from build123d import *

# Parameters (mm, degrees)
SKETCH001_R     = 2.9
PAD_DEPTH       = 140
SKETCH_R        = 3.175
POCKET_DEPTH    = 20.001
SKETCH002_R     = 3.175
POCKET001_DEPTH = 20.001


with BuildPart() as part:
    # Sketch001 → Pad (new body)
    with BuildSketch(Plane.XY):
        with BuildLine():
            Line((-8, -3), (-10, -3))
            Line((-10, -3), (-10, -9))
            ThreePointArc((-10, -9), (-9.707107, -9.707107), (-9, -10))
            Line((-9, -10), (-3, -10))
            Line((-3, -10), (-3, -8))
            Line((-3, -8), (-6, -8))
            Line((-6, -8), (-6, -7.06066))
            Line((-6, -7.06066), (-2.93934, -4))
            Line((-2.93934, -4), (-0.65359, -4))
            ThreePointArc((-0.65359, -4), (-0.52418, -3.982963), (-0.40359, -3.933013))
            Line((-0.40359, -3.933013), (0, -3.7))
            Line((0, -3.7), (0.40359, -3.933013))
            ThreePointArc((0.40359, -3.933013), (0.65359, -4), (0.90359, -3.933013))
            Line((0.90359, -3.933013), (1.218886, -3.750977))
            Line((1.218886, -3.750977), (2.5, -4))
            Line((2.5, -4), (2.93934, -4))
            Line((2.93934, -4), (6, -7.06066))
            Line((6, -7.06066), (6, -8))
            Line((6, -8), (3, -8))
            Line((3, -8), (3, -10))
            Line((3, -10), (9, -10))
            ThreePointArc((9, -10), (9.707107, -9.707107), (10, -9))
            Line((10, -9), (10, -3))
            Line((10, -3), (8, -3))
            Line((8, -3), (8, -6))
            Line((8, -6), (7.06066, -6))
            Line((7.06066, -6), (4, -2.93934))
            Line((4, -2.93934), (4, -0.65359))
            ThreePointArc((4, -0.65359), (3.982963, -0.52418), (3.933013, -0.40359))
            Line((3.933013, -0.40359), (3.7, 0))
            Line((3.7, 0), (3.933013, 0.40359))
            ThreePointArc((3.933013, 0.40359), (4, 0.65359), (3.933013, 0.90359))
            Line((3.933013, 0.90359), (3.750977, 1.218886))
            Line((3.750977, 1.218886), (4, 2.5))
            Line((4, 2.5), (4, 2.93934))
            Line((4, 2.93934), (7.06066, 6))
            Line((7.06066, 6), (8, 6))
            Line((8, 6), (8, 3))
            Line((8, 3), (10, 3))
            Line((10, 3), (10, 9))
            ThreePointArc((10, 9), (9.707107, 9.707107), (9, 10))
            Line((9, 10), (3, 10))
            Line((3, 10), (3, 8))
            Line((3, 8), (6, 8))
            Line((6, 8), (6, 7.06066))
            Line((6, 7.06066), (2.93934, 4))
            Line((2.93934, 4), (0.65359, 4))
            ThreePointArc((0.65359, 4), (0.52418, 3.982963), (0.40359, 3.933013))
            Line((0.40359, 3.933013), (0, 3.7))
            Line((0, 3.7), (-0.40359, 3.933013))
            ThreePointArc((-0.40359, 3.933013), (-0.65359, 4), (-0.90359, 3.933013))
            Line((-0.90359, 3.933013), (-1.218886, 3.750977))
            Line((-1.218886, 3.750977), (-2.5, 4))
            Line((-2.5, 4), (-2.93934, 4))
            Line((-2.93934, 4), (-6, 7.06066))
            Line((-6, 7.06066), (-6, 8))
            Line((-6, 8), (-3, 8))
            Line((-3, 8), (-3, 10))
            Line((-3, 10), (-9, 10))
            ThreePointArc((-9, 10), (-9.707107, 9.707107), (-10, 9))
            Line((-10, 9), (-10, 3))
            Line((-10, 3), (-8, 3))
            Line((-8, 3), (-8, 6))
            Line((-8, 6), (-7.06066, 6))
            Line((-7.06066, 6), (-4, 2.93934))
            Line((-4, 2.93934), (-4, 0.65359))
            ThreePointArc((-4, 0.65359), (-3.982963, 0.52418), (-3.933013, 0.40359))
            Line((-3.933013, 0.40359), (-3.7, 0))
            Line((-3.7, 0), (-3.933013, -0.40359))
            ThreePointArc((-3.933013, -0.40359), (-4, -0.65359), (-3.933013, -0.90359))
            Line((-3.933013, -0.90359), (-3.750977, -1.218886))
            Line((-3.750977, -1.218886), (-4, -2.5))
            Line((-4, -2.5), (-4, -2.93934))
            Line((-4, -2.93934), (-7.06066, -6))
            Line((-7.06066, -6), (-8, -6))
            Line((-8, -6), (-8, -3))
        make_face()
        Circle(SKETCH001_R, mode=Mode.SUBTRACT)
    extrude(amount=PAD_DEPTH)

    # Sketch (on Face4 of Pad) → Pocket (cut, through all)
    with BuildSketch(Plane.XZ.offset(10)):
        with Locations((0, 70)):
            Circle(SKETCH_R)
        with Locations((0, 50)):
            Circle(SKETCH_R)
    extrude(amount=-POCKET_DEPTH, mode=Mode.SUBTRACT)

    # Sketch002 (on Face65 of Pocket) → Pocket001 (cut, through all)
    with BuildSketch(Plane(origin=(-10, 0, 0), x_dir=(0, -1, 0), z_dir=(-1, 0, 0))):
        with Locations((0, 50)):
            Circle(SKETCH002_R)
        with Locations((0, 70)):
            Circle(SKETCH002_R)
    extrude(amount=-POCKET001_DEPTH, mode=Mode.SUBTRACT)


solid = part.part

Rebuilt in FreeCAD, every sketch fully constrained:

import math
import FreeCAD as App
import Part
import Sketcher
Q = App.Units.Quantity

doc = App.newDocument("Part")
body = doc.addObject("PartDesign::Body", "Body")

sketch1 = doc.addObject("Sketcher::SketchObject", "Sketch")
body.addObject(sketch1)
sketch1.AttachmentSupport = (doc.XY_Plane, [""])
sketch1.MapMode = "FlatFace"
sketch1.addGeometry(Part.LineSegment(App.Vector(-8, -3, 0), App.Vector(-10, -3, 0)), False)
sketch1.addGeometry(Part.LineSegment(App.Vector(-10, -3, 0), App.Vector(-10, -9, 0)), False)
sketch1.addGeometry(Part.ArcOfCircle(Part.Circle(App.Vector(-9, -9, 0), App.Vector(0, 0, 1), 1), math.radians(180), math.radians(270)), False)
sketch1.addGeometry(Part.LineSegment(App.Vector(-9, -10, 0), App.Vector(-3, -10, 0)), False)
sketch1.addGeometry(Part.LineSegment(App.Vector(-3, -10, 0), App.Vector(-3, -8, 0)), False)
sketch1.addGeometry(Part.LineSegment(App.Vector(-3, -8, 0), App.Vector(-6, -8, 0)), False)
sketch1.addGeometry(Part.LineSegment(App.Vector(-6, -8, 0), App.Vector(-6, -7.06, 0)), False)
sketch1.addGeometry(Part.LineSegment(App.Vector(-6, -7.06, 0), App.Vector(-2.94, -4, 0)), False)
sketch1.addGeometry(Part.LineSegment(App.Vector(-2.94, -4, 0), App.Vector(-0.65, -4, 0)), False)
sketch1.addGeometry(Part.ArcOfCircle(Part.Circle(App.Vector(-0.65, -3.5, 0), App.Vector(0, 0, 1), 0.5), math.radians(-90), math.radians(-60)), False)
sketch1.addGeometry(Part.LineSegment(App.Vector(-0.4, -3.93, 0), App.Vector(0, -3.7, 0)), False)
sketch1.addGeometry(Part.LineSegment(App.Vector(0, -3.7, 0), App.Vector(0.4, -3.93, 0)), False)
sketch1.addGeometry(Part.ArcOfCircle(Part.Circle(App.Vector(0.65, -3.5, 0), App.Vector(0, 0, 1), 0.5), math.radians(-120), math.radians(-60)), False)
sketch1.addGeometry(Part.LineSegment(App.Vector(0.9, -3.93, 0), App.Vector(1.22, -3.75, 0)), False)
sketch1.addGeometry(Part.LineSegment(App.Vector(1.22, -3.75, 0), App.Vector(2.5, -4, 0)), False)
sketch1.addGeometry(Part.LineSegment(App.Vector(2.5, -4, 0), App.Vector(2.94, -4, 0)), False)
sketch1.addGeometry(Part.LineSegment(App.Vector(2.94, -4, 0), App.Vector(6, -7.06, 0)), False)
sketch1.addGeometry(Part.LineSegment(App.Vector(6, -7.06, 0), App.Vector(6, -8, 0)), False)
sketch1.addGeometry(Part.LineSegment(App.Vector(6, -8, 0), App.Vector(3, -8, 0)), False)
sketch1.addGeometry(Part.LineSegment(App.Vector(3, -8, 0), App.Vector(3, -10, 0)), False)
sketch1.addGeometry(Part.LineSegment(App.Vector(3, -10, 0), App.Vector(9, -10, 0)), False)
sketch1.addGeometry(Part.ArcOfCircle(Part.Circle(App.Vector(9, -9, 0), App.Vector(0, 0, 1), 1), math.radians(-90), math.radians(0)), False)
sketch1.addGeometry(Part.LineSegment(App.Vector(10, -9, 0), App.Vector(10, -3, 0)), False)
sketch1.addGeometry(Part.LineSegment(App.Vector(10, -3, 0), App.Vector(8, -3, 0)), False)
sketch1.addGeometry(Part.LineSegment(App.Vector(8, -3, 0), App.Vector(8, -6, 0)), False)
sketch1.addGeometry(Part.LineSegment(App.Vector(8, -6, 0), App.Vector(7.06, -6, 0)), False)
sketch1.addGeometry(Part.LineSegment(App.Vector(7.06, -6, 0), App.Vector(4, -2.94, 0)), False)
sketch1.addGeometry(Part.LineSegment(App.Vector(4, -2.94, 0), App.Vector(4, -0.65, 0)), False)
sketch1.addGeometry(Part.ArcOfCircle(Part.Circle(App.Vector(3.5, -0.65, 0), App.Vector(0, 0, 1), 0.5), math.radians(0), math.radians(30)), False)
sketch1.addGeometry(Part.LineSegment(App.Vector(3.93, -0.4, 0), App.Vector(3.7, 0, 0)), False)
sketch1.addGeometry(Part.LineSegment(App.Vector(3.7, 0, 0), App.Vector(3.93, 0.4, 0)), False)
sketch1.addGeometry(Part.ArcOfCircle(Part.Circle(App.Vector(3.5, 0.65, 0), App.Vector(0, 0, 1), 0.5), math.radians(-30), math.radians(30)), False)
sketch1.addGeometry(Part.LineSegment(App.Vector(3.93, 0.9, 0), App.Vector(3.75, 1.22, 0)), False)
sketch1.addGeometry(Part.LineSegment(App.Vector(3.75, 1.22, 0), App.Vector(4, 2.5, 0)), False)
sketch1.addGeometry(Part.LineSegment(App.Vector(4, 2.5, 0), App.Vector(4, 2.94, 0)), False)
sketch1.addGeometry(Part.LineSegment(App.Vector(4, 2.94, 0), App.Vector(7.06, 6, 0)), False)
sketch1.addGeometry(Part.LineSegment(App.Vector(7.06, 6, 0), App.Vector(8, 6, 0)), False)
sketch1.addGeometry(Part.LineSegment(App.Vector(8, 6, 0), App.Vector(8, 3, 0)), False)
sketch1.addGeometry(Part.LineSegment(App.Vector(8, 3, 0), App.Vector(10, 3, 0)), False)
sketch1.addGeometry(Part.LineSegment(App.Vector(10, 3, 0), App.Vector(10, 9, 0)), False)
sketch1.addGeometry(Part.ArcOfCircle(Part.Circle(App.Vector(9, 9, 0), App.Vector(0, 0, 1), 1), math.radians(0), math.radians(90)), False)
sketch1.addGeometry(Part.LineSegment(App.Vector(9, 10, 0), App.Vector(3, 10, 0)), False)
sketch1.addGeometry(Part.LineSegment(App.Vector(3, 10, 0), App.Vector(3, 8, 0)), False)
sketch1.addGeometry(Part.LineSegment(App.Vector(3, 8, 0), App.Vector(6, 8, 0)), False)
sketch1.addGeometry(Part.LineSegment(App.Vector(6, 8, 0), App.Vector(6, 7.06, 0)), False)
sketch1.addGeometry(Part.LineSegment(App.Vector(6, 7.06, 0), App.Vector(2.94, 4, 0)), False)
sketch1.addGeometry(Part.LineSegment(App.Vector(2.94, 4, 0), App.Vector(0.65, 4, 0)), False)
sketch1.addGeometry(Part.ArcOfCircle(Part.Circle(App.Vector(0.65, 3.5, 0), App.Vector(0, 0, 1), 0.5), math.radians(90), math.radians(120)), False)
sketch1.addGeometry(Part.LineSegment(App.Vector(0.4, 3.93, 0), App.Vector(0, 3.7, 0)), False)
sketch1.addGeometry(Part.LineSegment(App.Vector(0, 3.7, 0), App.Vector(-0.4, 3.93, 0)), False)
sketch1.addGeometry(Part.ArcOfCircle(Part.Circle(App.Vector(-0.65, 3.5, 0), App.Vector(0, 0, 1), 0.5), math.radians(60), math.radians(120)), False)
sketch1.addGeometry(Part.LineSegment(App.Vector(-0.9, 3.93, 0), App.Vector(-1.22, 3.75, 0)), False)
sketch1.addGeometry(Part.LineSegment(App.Vector(-1.22, 3.75, 0), App.Vector(-2.5, 4, 0)), False)
sketch1.addGeometry(Part.LineSegment(App.Vector(-2.5, 4, 0), App.Vector(-2.94, 4, 0)), False)
sketch1.addGeometry(Part.LineSegment(App.Vector(-2.94, 4, 0), App.Vector(-6, 7.06, 0)), False)
sketch1.addGeometry(Part.LineSegment(App.Vector(-6, 7.06, 0), App.Vector(-6, 8, 0)), False)
sketch1.addGeometry(Part.LineSegment(App.Vector(-6, 8, 0), App.Vector(-3, 8, 0)), False)
sketch1.addGeometry(Part.LineSegment(App.Vector(-3, 8, 0), App.Vector(-3, 10, 0)), False)
sketch1.addGeometry(Part.LineSegment(App.Vector(-3, 10, 0), App.Vector(-9, 10, 0)), False)
sketch1.addGeometry(Part.ArcOfCircle(Part.Circle(App.Vector(-9, 9, 0), App.Vector(0, 0, 1), 1), math.radians(90), math.radians(180)), False)
sketch1.addGeometry(Part.LineSegment(App.Vector(-10, 9, 0), App.Vector(-10, 3, 0)), False)
sketch1.addGeometry(Part.LineSegment(App.Vector(-10, 3, 0), App.Vector(-8, 3, 0)), False)
sketch1.addGeometry(Part.LineSegment(App.Vector(-8, 3, 0), App.Vector(-8, 6, 0)), False)
sketch1.addGeometry(Part.LineSegment(App.Vector(-8, 6, 0), App.Vector(-7.06, 6, 0)), False)
sketch1.addGeometry(Part.LineSegment(App.Vector(-7.06, 6, 0), App.Vector(-4, 2.94, 0)), False)
sketch1.addGeometry(Part.LineSegment(App.Vector(-4, 2.94, 0), App.Vector(-4, 0.65, 0)), False)
sketch1.addGeometry(Part.ArcOfCircle(Part.Circle(App.Vector(-3.5, 0.65, 0), App.Vector(0, 0, 1), 0.5), math.radians(180), math.radians(210)), False)
sketch1.addGeometry(Part.LineSegment(App.Vector(-3.93, 0.4, 0), App.Vector(-3.7, 0, 0)), False)
sketch1.addGeometry(Part.LineSegment(App.Vector(-3.7, 0, 0), App.Vector(-3.93, -0.4, 0)), False)
sketch1.addGeometry(Part.ArcOfCircle(Part.Circle(App.Vector(-3.5, -0.65, 0), App.Vector(0, 0, 1), 0.5), math.radians(150), math.radians(210)), False)
sketch1.addGeometry(Part.LineSegment(App.Vector(-3.93, -0.9, 0), App.Vector(-3.75, -1.22, 0)), False)
sketch1.addGeometry(Part.LineSegment(App.Vector(-3.75, -1.22, 0), App.Vector(-4, -2.5, 0)), False)
sketch1.addGeometry(Part.LineSegment(App.Vector(-4, -2.5, 0), App.Vector(-4, -2.94, 0)), False)
sketch1.addGeometry(Part.LineSegment(App.Vector(-4, -2.94, 0), App.Vector(-7.06, -6, 0)), False)
sketch1.addGeometry(Part.LineSegment(App.Vector(-7.06, -6, 0), App.Vector(-8, -6, 0)), False)
sketch1.addGeometry(Part.LineSegment(App.Vector(-8, -6, 0), App.Vector(-8, -3, 0)), False)
sketch1.addGeometry(Part.Circle(App.Vector(0, 0, 0), App.Vector(0, 0, 1), 2.9), False)
sketch1.addConstraint(Sketcher.Constraint("Coincident", 0, 2, 1, 1))
sketch1.addConstraint(Sketcher.Constraint("Tangent", 1, 2, 2, 1))
sketch1.addConstraint(Sketcher.Constraint("Tangent", 2, 2, 3, 1))
sketch1.addConstraint(Sketcher.Constraint("Coincident", 3, 2, 4, 1))
sketch1.addConstraint(Sketcher.Constraint("Coincident", 4, 2, 5, 1))
sketch1.addConstraint(Sketcher.Constraint("Coincident", 5, 2, 6, 1))
sketch1.addConstraint(Sketcher.Constraint("Coincident", 6, 2, 7, 1))
sketch1.addConstraint(Sketcher.Constraint("Coincident", 7, 2, 8, 1))
sketch1.addConstraint(Sketcher.Constraint("Coincident", 8, 2, 9, 1))
sketch1.addConstraint(Sketcher.Constraint("Tangent", 9, 2, 10, 1))
sketch1.addConstraint(Sketcher.Constraint("Coincident", 10, 2, 11, 1))
sketch1.addConstraint(Sketcher.Constraint("Coincident", 11, 2, 12, 1))
sketch1.addConstraint(Sketcher.Constraint("Tangent", 12, 2, 13, 1))
sketch1.addConstraint(Sketcher.Constraint("Coincident", 13, 2, 14, 1))
sketch1.addConstraint(Sketcher.Constraint("Coincident", 14, 2, 15, 1))
sketch1.addConstraint(Sketcher.Constraint("Coincident", 15, 2, 16, 1))
sketch1.addConstraint(Sketcher.Constraint("Coincident", 16, 2, 17, 1))
sketch1.addConstraint(Sketcher.Constraint("Coincident", 17, 2, 18, 1))
sketch1.addConstraint(Sketcher.Constraint("Coincident", 18, 2, 19, 1))
sketch1.addConstraint(Sketcher.Constraint("Coincident", 19, 2, 20, 1))
sketch1.addConstraint(Sketcher.Constraint("Tangent", 20, 2, 21, 1))
sketch1.addConstraint(Sketcher.Constraint("Tangent", 21, 2, 22, 1))
sketch1.addConstraint(Sketcher.Constraint("Coincident", 22, 2, 23, 1))
sketch1.addConstraint(Sketcher.Constraint("Coincident", 23, 2, 24, 1))
sketch1.addConstraint(Sketcher.Constraint("Coincident", 24, 2, 25, 1))
sketch1.addConstraint(Sketcher.Constraint("Coincident", 25, 2, 26, 1))
sketch1.addConstraint(Sketcher.Constraint("Coincident", 26, 2, 27, 1))
sketch1.addConstraint(Sketcher.Constraint("Coincident", 27, 2, 28, 1))
sketch1.addConstraint(Sketcher.Constraint("Tangent", 28, 2, 29, 1))
sketch1.addConstraint(Sketcher.Constraint("Coincident", 29, 2, 30, 1))
sketch1.addConstraint(Sketcher.Constraint("Coincident", 30, 2, 31, 1))
sketch1.addConstraint(Sketcher.Constraint("Tangent", 31, 2, 32, 1))
sketch1.addConstraint(Sketcher.Constraint("Coincident", 32, 2, 33, 1))
sketch1.addConstraint(Sketcher.Constraint("Coincident", 33, 2, 34, 1))
sketch1.addConstraint(Sketcher.Constraint("Coincident", 34, 2, 35, 1))
sketch1.addConstraint(Sketcher.Constraint("Coincident", 35, 2, 36, 1))
sketch1.addConstraint(Sketcher.Constraint("Coincident", 36, 2, 37, 1))
sketch1.addConstraint(Sketcher.Constraint("Coincident", 37, 2, 38, 1))
sketch1.addConstraint(Sketcher.Constraint("Coincident", 38, 2, 39, 1))
sketch1.addConstraint(Sketcher.Constraint("Tangent", 39, 2, 40, 1))
sketch1.addConstraint(Sketcher.Constraint("Tangent", 40, 2, 41, 1))
sketch1.addConstraint(Sketcher.Constraint("Coincident", 41, 2, 42, 1))
sketch1.addConstraint(Sketcher.Constraint("Coincident", 42, 2, 43, 1))
sketch1.addConstraint(Sketcher.Constraint("Coincident", 43, 2, 44, 1))
sketch1.addConstraint(Sketcher.Constraint("Coincident", 44, 2, 45, 1))
sketch1.addConstraint(Sketcher.Constraint("Coincident", 45, 2, 46, 1))
sketch1.addConstraint(Sketcher.Constraint("Coincident", 46, 2, 47, 1))
sketch1.addConstraint(Sketcher.Constraint("Tangent", 47, 2, 48, 1))
sketch1.addConstraint(Sketcher.Constraint("Coincident", 48, 2, 49, 1))
sketch1.addConstraint(Sketcher.Constraint("Coincident", 49, 2, 50, 1))
sketch1.addConstraint(Sketcher.Constraint("Tangent", 50, 2, 51, 1))
sketch1.addConstraint(Sketcher.Constraint("Coincident", 51, 2, 52, 1))
sketch1.addConstraint(Sketcher.Constraint("Coincident", 52, 2, 53, 1))
sketch1.addConstraint(Sketcher.Constraint("Coincident", 53, 2, 54, 1))
sketch1.addConstraint(Sketcher.Constraint("Coincident", 54, 2, 55, 1))
sketch1.addConstraint(Sketcher.Constraint("Coincident", 55, 2, 56, 1))
sketch1.addConstraint(Sketcher.Constraint("Coincident", 56, 2, 57, 1))
sketch1.addConstraint(Sketcher.Constraint("Coincident", 57, 2, 58, 1))
sketch1.addConstraint(Sketcher.Constraint("Tangent", 58, 2, 59, 1))
sketch1.addConstraint(Sketcher.Constraint("Tangent", 59, 2, 60, 1))
sketch1.addConstraint(Sketcher.Constraint("Coincident", 60, 2, 61, 1))
sketch1.addConstraint(Sketcher.Constraint("Coincident", 61, 2, 62, 1))
sketch1.addConstraint(Sketcher.Constraint("Coincident", 62, 2, 63, 1))
sketch1.addConstraint(Sketcher.Constraint("Coincident", 63, 2, 64, 1))
sketch1.addConstraint(Sketcher.Constraint("Coincident", 64, 2, 65, 1))
sketch1.addConstraint(Sketcher.Constraint("Coincident", 65, 2, 66, 1))
sketch1.addConstraint(Sketcher.Constraint("Tangent", 66, 2, 67, 1))
sketch1.addConstraint(Sketcher.Constraint("Coincident", 67, 2, 68, 1))
sketch1.addConstraint(Sketcher.Constraint("Coincident", 68, 2, 69, 1))
sketch1.addConstraint(Sketcher.Constraint("Tangent", 69, 2, 70, 1))
sketch1.addConstraint(Sketcher.Constraint("Coincident", 70, 2, 71, 1))
sketch1.addConstraint(Sketcher.Constraint("Coincident", 71, 2, 72, 1))
sketch1.addConstraint(Sketcher.Constraint("Coincident", 72, 2, 73, 1))
sketch1.addConstraint(Sketcher.Constraint("Coincident", 73, 2, 74, 1))
sketch1.addConstraint(Sketcher.Constraint("Coincident", 74, 2, 75, 1))
sketch1.addConstraint(Sketcher.Constraint("Coincident", 75, 2, 0, 1))
sketch1.addConstraint(Sketcher.Constraint("Horizontal", 0))
sketch1.addConstraint(Sketcher.Constraint("Vertical", 1))
sketch1.addConstraint(Sketcher.Constraint("Horizontal", 3))
sketch1.addConstraint(Sketcher.Constraint("Vertical", 4))
sketch1.addConstraint(Sketcher.Constraint("Horizontal", 5))
sketch1.addConstraint(Sketcher.Constraint("Vertical", 6))
sketch1.addConstraint(Sketcher.Constraint("Horizontal", 8))
sketch1.addConstraint(Sketcher.Constraint("Horizontal", 15))
sketch1.addConstraint(Sketcher.Constraint("Vertical", 17))
sketch1.addConstraint(Sketcher.Constraint("Horizontal", 18))
sketch1.addConstraint(Sketcher.Constraint("Vertical", 19))
sketch1.addConstraint(Sketcher.Constraint("Horizontal", 20))
sketch1.addConstraint(Sketcher.Constraint("Vertical", 22))
sketch1.addConstraint(Sketcher.Constraint("Horizontal", 23))
sketch1.addConstraint(Sketcher.Constraint("Vertical", 24))
sketch1.addConstraint(Sketcher.Constraint("Horizontal", 25))
sketch1.addConstraint(Sketcher.Constraint("Vertical", 27))
sketch1.addConstraint(Sketcher.Constraint("Vertical", 34))
sketch1.addConstraint(Sketcher.Constraint("Horizontal", 36))
sketch1.addConstraint(Sketcher.Constraint("Vertical", 37))
sketch1.addConstraint(Sketcher.Constraint("Horizontal", 38))
sketch1.addConstraint(Sketcher.Constraint("Vertical", 39))
sketch1.addConstraint(Sketcher.Constraint("Horizontal", 41))
sketch1.addConstraint(Sketcher.Constraint("Vertical", 42))
sketch1.addConstraint(Sketcher.Constraint("Horizontal", 43))
sketch1.addConstraint(Sketcher.Constraint("Vertical", 44))
sketch1.addConstraint(Sketcher.Constraint("Horizontal", 46))
sketch1.addConstraint(Sketcher.Constraint("Horizontal", 53))
sketch1.addConstraint(Sketcher.Constraint("Vertical", 55))
sketch1.addConstraint(Sketcher.Constraint("Horizontal", 56))
sketch1.addConstraint(Sketcher.Constraint("Vertical", 57))
sketch1.addConstraint(Sketcher.Constraint("Horizontal", 58))
sketch1.addConstraint(Sketcher.Constraint("Vertical", 60))
sketch1.addConstraint(Sketcher.Constraint("Horizontal", 61))
sketch1.addConstraint(Sketcher.Constraint("Vertical", 62))
sketch1.addConstraint(Sketcher.Constraint("Horizontal", 63))
sketch1.addConstraint(Sketcher.Constraint("Vertical", 65))
sketch1.addConstraint(Sketcher.Constraint("Vertical", 72))
sketch1.addConstraint(Sketcher.Constraint("Horizontal", 74))
sketch1.addConstraint(Sketcher.Constraint("Vertical", 75))
sketch1.addConstraint(Sketcher.Constraint("Coincident", 76, 3, -1, 1))
sketch1.addConstraint(Sketcher.Constraint("Equal", 2, 21))
sketch1.addConstraint(Sketcher.Constraint("Equal", 9, 28))
sketch1.addConstraint(Sketcher.Constraint("Equal", 12, 31))
sketch1.addConstraint(Sketcher.Constraint("Equal", 21, 40))
sketch1.addConstraint(Sketcher.Constraint("Equal", 28, 47))
sketch1.addConstraint(Sketcher.Constraint("Equal", 31, 50))
sketch1.addConstraint(Sketcher.Constraint("Equal", 40, 59))
sketch1.addConstraint(Sketcher.Constraint("Equal", 47, 66))
sketch1.addConstraint(Sketcher.Constraint("Equal", 50, 69))
sketch1.addConstraint(Sketcher.Constraint("Symmetric", 2, 3, 40, 3, -1, 1))
sketch1.addConstraint(Sketcher.Constraint("Symmetric", 9, 3, 47, 3, -1, 1))
sketch1.addConstraint(Sketcher.Constraint("Symmetric", 12, 3, 50, 3, -1, 1))
sketch1.addConstraint(Sketcher.Constraint("Symmetric", 21, 3, 59, 3, -1, 1))
sketch1.addConstraint(Sketcher.Constraint("Symmetric", 28, 3, 66, 3, -1, 1))
sketch1.addConstraint(Sketcher.Constraint("Symmetric", 31, 3, 69, 3, -1, 1))
sketch1.addConstraint(Sketcher.Constraint("Symmetric", 4, 2, 42, 2, -1, 1))
sketch1.addConstraint(Sketcher.Constraint("Symmetric", 6, 2, 44, 2, -1, 1))
sketch1.addConstraint(Sketcher.Constraint("Symmetric", 10, 2, 48, 2, -1, 1))
sketch1.addConstraint(Sketcher.Constraint("Symmetric", 13, 2, 51, 2, -1, 1))
sketch1.addConstraint(Sketcher.Constraint("Symmetric", 14, 2, 52, 2, -1, 1))
sketch1.addConstraint(Sketcher.Constraint("Symmetric", 16, 2, 54, 2, -1, 1))
sketch1.addConstraint(Sketcher.Constraint("Symmetric", 18, 2, 56, 2, -1, 1))
sketch1.addConstraint(Sketcher.Constraint("Symmetric", 23, 2, 61, 2, -1, 1))
sketch1.addConstraint(Sketcher.Constraint("Symmetric", 25, 2, 63, 2, -1, 1))
sketch1.addConstraint(Sketcher.Constraint("Symmetric", 29, 2, 67, 2, -1, 1))
sketch1.addConstraint(Sketcher.Constraint("Symmetric", 32, 2, 70, 2, -1, 1))
sketch1.addConstraint(Sketcher.Constraint("Symmetric", 33, 2, 71, 2, -1, 1))
sketch1.addConstraint(Sketcher.Constraint("Symmetric", 35, 2, 73, 2, -1, 1))
sketch1.addConstraint(Sketcher.Constraint("Symmetric", 37, 2, 75, 2, -1, 1))
sketch1.addConstraint(Sketcher.Constraint("Symmetric", 9, 3, 12, 3, -2))
sketch1.addConstraint(Sketcher.Constraint("Symmetric", 2, 3, 21, 3, -2))
sketch1.addConstraint(Sketcher.Constraint("Symmetric", 31, 3, 66, 3, -2))
sketch1.addConstraint(Sketcher.Constraint("Symmetric", 9, 2, 11, 2, -2))
sketch1.addConstraint(Sketcher.Constraint("Symmetric", 7, 2, 15, 2, -2))
sketch1.addConstraint(Sketcher.Constraint("Symmetric", 6, 2, 16, 2, -2))
sketch1.addConstraint(Sketcher.Constraint("Symmetric", 4, 2, 18, 2, -2))
sketch1.addConstraint(Sketcher.Constraint("Symmetric", 37, 2, 61, 2, -2))
sketch1.addConstraint(Sketcher.Constraint("Symmetric", 35, 2, 63, 2, -2))
sketch1.addConstraint(Sketcher.Constraint("Symmetric", 34, 2, 64, 2, -2))
sketch1.addConstraint(Sketcher.Constraint("PointOnObject", 10, 2, -2))
sketch1.addConstraint(Sketcher.Constraint("PointOnObject", 29, 2, -1))
sketch1.addConstraint(Sketcher.Constraint("Parallel", 10, 13))
sketch1.addConstraint(Sketcher.Constraint("Perpendicular", 7, 16))
sketch1.addConstraint(Sketcher.Constraint("Parallel", 16, 26))
sketch1.addConstraint(Sketcher.Constraint("Perpendicular", 13, 29))
sketch1.addConstraint(Sketcher.Constraint("Parallel", 29, 32))
sketch1.addConstraint(Sketcher.Constraint("Perpendicular", 14, 33))
sketch1.addConstraint(Sketcher.Constraint("Perpendicular", 26, 35))
sketch1.addConstraint(Sketcher.Constraint("Parallel", 35, 45))
sketch1.addConstraint(Sketcher.Constraint("Perpendicular", 45, 54))
sketch1.addConstraint(Sketcher.Constraint("Perpendicular", 64, 73))
sketch1.addConstraint(Sketcher.Constraint("Horizontal", 69, 3, 27, 2))
sketch1.addConstraint(Sketcher.Constraint("Horizontal", 47, 2, 49, 2))
sketch1.addConstraint(Sketcher.Constraint("Horizontal", 66, 3, 65, 2))
sketch1.addConstraint(Sketcher.Constraint("Horizontal", 30, 2, 66, 2))
sketch1.addConstraint(Sketcher.Constraint("Horizontal", 28, 2, 68, 2))
sketch1.addConstraint(Sketcher.Constraint("Vertical", 50, 3, 8, 2))
sketch1.addConstraint(Sketcher.Constraint("Vertical", 47, 3, 46, 2))
sketch1.addConstraint(Sketcher.Constraint("Equal", 58, 1))
sketch1.addConstraint(Sketcher.Constraint("Equal", 61, 4))
sketch1.addConstraint(Sketcher.Constraint("Equal", 74, 6))
sketch1.addConstraint(Sketcher.Constraint("Equal", 56, 24))
sketch1.addConstraint(Sketcher.Constraint("Equal", 46, 27))
sketch1.addConstraint(Sketcher.Constraint("Equal", 53, 34))
sketch1.addConstraint(Sketcher.Constraint("Equal", 16, 26))
sketch1.addConstraint(Sketcher.Constraint("Equal", 11, 29))
sketch1.addConstraint(Sketcher.Constraint("Radius", 2, Q("0.999999 mm")))
sketch1.addConstraint(Sketcher.Constraint("Diameter", 76, Q("5.8 mm")))
sketch1.addConstraint(Sketcher.Constraint("Radius", 12, Q("0.500002 mm")))
sketch1.addConstraint(Sketcher.Constraint("DistanceX", 0, 2, 0, 1, Q("2 mm")))
sketch1.addConstraint(Sketcher.Constraint("DistanceX", 3, 1, 3, 2, Q("6 mm")))
sketch1.addConstraint(Sketcher.Constraint("DistanceX", 5, 2, 5, 1, Q("3 mm")))
sketch1.addConstraint(Sketcher.Constraint("Angle", 14, Q("-10.999986 deg")))
sketch1.addConstraint(Sketcher.Constraint("DistanceX", 2, 3, -1, 1, Q("9.000001 mm")))
sketch1.addConstraint(Sketcher.Constraint("DistanceY", 7, 2, -1, 1, Q("4 mm")))
sketch1.addConstraint(Sketcher.Constraint("DistanceY", 10, 2, -1, 1, Q("3.7 mm")))
sketch1.addConstraint(Sketcher.Constraint("DistanceX", -1, 1, 14, 2, Q("2.5 mm")))
sketch1.addConstraint(Sketcher.Constraint("DistanceX", 8, 1, 8, 2, Q("2.28575 mm")))
sketch1.addConstraint(Sketcher.Constraint("DistanceX", 15, 1, 15, 2, Q("0.43934 mm")))
pad1 = doc.addObject("PartDesign::Pad", "Pad")
body.addObject(pad1)
pad1.Profile = sketch1
pad1.Length = 140

sketch2 = doc.addObject("Sketcher::SketchObject", "Sketch001")
body.addObject(sketch2)
sketch2.AttachmentSupport = (doc.XZ_Plane, [""])
sketch2.MapMode = "FlatFace"
sketch2.AttachmentOffset = App.Placement(App.Vector(0, 0, 10), App.Rotation())
sketch2.addGeometry(Part.Circle(App.Vector(0, 70, 0), App.Vector(0, 0, 1), 3.2), False)
sketch2.addGeometry(Part.Circle(App.Vector(0, 50, 0), App.Vector(0, 0, 1), 3.2), False)
sketch2.addConstraint(Sketcher.Constraint("Equal", 0, 1))
sketch2.addConstraint(Sketcher.Constraint("PointOnObject", 0, 3, -2))
sketch2.addConstraint(Sketcher.Constraint("PointOnObject", 1, 3, -2))
sketch2.addConstraint(Sketcher.Constraint("Diameter", 0, Q("6.35 mm")))
sketch2.addConstraint(Sketcher.Constraint("DistanceY", -1, 1, 0, 3, Q("70 mm")))
sketch2.addConstraint(Sketcher.Constraint("DistanceY", -1, 1, 1, 3, Q("50 mm")))
pocket1 = doc.addObject("PartDesign::Pocket", "Pocket")
body.addObject(pocket1)
pocket1.Profile = sketch2
pocket1.Type = "ThroughAll"

sketch3 = doc.addObject("Sketcher::SketchObject", "Sketch002")
body.addObject(sketch3)
sketch3.AttachmentSupport = (doc.YZ_Plane, [""])
sketch3.MapMode = "FlatFace"
sketch3.AttachmentOffset = App.Placement(App.Vector(0, 0, -10), App.Rotation())
sketch3.addGeometry(Part.Circle(App.Vector(0, 50, 0), App.Vector(0, 0, 1), 3.2), False)
sketch3.addGeometry(Part.Circle(App.Vector(0, 70, 0), App.Vector(0, 0, 1), 3.2), False)
sketch3.addConstraint(Sketcher.Constraint("Equal", 0, 1))
sketch3.addConstraint(Sketcher.Constraint("PointOnObject", 0, 3, -2))
sketch3.addConstraint(Sketcher.Constraint("PointOnObject", 1, 3, -2))
sketch3.addConstraint(Sketcher.Constraint("Diameter", 0, Q("6.35 mm")))
sketch3.addConstraint(Sketcher.Constraint("DistanceY", -1, 1, 0, 3, Q("50 mm")))
sketch3.addConstraint(Sketcher.Constraint("DistanceY", -1, 1, 1, 3, Q("70 mm")))
pocket2 = doc.addObject("PartDesign::Pocket", "Pocket001")
body.addObject(pocket2)
pocket2.Profile = sketch3
pocket2.Type = "ThroughAll"
pocket2.Reversed = True

doc.recompute()
